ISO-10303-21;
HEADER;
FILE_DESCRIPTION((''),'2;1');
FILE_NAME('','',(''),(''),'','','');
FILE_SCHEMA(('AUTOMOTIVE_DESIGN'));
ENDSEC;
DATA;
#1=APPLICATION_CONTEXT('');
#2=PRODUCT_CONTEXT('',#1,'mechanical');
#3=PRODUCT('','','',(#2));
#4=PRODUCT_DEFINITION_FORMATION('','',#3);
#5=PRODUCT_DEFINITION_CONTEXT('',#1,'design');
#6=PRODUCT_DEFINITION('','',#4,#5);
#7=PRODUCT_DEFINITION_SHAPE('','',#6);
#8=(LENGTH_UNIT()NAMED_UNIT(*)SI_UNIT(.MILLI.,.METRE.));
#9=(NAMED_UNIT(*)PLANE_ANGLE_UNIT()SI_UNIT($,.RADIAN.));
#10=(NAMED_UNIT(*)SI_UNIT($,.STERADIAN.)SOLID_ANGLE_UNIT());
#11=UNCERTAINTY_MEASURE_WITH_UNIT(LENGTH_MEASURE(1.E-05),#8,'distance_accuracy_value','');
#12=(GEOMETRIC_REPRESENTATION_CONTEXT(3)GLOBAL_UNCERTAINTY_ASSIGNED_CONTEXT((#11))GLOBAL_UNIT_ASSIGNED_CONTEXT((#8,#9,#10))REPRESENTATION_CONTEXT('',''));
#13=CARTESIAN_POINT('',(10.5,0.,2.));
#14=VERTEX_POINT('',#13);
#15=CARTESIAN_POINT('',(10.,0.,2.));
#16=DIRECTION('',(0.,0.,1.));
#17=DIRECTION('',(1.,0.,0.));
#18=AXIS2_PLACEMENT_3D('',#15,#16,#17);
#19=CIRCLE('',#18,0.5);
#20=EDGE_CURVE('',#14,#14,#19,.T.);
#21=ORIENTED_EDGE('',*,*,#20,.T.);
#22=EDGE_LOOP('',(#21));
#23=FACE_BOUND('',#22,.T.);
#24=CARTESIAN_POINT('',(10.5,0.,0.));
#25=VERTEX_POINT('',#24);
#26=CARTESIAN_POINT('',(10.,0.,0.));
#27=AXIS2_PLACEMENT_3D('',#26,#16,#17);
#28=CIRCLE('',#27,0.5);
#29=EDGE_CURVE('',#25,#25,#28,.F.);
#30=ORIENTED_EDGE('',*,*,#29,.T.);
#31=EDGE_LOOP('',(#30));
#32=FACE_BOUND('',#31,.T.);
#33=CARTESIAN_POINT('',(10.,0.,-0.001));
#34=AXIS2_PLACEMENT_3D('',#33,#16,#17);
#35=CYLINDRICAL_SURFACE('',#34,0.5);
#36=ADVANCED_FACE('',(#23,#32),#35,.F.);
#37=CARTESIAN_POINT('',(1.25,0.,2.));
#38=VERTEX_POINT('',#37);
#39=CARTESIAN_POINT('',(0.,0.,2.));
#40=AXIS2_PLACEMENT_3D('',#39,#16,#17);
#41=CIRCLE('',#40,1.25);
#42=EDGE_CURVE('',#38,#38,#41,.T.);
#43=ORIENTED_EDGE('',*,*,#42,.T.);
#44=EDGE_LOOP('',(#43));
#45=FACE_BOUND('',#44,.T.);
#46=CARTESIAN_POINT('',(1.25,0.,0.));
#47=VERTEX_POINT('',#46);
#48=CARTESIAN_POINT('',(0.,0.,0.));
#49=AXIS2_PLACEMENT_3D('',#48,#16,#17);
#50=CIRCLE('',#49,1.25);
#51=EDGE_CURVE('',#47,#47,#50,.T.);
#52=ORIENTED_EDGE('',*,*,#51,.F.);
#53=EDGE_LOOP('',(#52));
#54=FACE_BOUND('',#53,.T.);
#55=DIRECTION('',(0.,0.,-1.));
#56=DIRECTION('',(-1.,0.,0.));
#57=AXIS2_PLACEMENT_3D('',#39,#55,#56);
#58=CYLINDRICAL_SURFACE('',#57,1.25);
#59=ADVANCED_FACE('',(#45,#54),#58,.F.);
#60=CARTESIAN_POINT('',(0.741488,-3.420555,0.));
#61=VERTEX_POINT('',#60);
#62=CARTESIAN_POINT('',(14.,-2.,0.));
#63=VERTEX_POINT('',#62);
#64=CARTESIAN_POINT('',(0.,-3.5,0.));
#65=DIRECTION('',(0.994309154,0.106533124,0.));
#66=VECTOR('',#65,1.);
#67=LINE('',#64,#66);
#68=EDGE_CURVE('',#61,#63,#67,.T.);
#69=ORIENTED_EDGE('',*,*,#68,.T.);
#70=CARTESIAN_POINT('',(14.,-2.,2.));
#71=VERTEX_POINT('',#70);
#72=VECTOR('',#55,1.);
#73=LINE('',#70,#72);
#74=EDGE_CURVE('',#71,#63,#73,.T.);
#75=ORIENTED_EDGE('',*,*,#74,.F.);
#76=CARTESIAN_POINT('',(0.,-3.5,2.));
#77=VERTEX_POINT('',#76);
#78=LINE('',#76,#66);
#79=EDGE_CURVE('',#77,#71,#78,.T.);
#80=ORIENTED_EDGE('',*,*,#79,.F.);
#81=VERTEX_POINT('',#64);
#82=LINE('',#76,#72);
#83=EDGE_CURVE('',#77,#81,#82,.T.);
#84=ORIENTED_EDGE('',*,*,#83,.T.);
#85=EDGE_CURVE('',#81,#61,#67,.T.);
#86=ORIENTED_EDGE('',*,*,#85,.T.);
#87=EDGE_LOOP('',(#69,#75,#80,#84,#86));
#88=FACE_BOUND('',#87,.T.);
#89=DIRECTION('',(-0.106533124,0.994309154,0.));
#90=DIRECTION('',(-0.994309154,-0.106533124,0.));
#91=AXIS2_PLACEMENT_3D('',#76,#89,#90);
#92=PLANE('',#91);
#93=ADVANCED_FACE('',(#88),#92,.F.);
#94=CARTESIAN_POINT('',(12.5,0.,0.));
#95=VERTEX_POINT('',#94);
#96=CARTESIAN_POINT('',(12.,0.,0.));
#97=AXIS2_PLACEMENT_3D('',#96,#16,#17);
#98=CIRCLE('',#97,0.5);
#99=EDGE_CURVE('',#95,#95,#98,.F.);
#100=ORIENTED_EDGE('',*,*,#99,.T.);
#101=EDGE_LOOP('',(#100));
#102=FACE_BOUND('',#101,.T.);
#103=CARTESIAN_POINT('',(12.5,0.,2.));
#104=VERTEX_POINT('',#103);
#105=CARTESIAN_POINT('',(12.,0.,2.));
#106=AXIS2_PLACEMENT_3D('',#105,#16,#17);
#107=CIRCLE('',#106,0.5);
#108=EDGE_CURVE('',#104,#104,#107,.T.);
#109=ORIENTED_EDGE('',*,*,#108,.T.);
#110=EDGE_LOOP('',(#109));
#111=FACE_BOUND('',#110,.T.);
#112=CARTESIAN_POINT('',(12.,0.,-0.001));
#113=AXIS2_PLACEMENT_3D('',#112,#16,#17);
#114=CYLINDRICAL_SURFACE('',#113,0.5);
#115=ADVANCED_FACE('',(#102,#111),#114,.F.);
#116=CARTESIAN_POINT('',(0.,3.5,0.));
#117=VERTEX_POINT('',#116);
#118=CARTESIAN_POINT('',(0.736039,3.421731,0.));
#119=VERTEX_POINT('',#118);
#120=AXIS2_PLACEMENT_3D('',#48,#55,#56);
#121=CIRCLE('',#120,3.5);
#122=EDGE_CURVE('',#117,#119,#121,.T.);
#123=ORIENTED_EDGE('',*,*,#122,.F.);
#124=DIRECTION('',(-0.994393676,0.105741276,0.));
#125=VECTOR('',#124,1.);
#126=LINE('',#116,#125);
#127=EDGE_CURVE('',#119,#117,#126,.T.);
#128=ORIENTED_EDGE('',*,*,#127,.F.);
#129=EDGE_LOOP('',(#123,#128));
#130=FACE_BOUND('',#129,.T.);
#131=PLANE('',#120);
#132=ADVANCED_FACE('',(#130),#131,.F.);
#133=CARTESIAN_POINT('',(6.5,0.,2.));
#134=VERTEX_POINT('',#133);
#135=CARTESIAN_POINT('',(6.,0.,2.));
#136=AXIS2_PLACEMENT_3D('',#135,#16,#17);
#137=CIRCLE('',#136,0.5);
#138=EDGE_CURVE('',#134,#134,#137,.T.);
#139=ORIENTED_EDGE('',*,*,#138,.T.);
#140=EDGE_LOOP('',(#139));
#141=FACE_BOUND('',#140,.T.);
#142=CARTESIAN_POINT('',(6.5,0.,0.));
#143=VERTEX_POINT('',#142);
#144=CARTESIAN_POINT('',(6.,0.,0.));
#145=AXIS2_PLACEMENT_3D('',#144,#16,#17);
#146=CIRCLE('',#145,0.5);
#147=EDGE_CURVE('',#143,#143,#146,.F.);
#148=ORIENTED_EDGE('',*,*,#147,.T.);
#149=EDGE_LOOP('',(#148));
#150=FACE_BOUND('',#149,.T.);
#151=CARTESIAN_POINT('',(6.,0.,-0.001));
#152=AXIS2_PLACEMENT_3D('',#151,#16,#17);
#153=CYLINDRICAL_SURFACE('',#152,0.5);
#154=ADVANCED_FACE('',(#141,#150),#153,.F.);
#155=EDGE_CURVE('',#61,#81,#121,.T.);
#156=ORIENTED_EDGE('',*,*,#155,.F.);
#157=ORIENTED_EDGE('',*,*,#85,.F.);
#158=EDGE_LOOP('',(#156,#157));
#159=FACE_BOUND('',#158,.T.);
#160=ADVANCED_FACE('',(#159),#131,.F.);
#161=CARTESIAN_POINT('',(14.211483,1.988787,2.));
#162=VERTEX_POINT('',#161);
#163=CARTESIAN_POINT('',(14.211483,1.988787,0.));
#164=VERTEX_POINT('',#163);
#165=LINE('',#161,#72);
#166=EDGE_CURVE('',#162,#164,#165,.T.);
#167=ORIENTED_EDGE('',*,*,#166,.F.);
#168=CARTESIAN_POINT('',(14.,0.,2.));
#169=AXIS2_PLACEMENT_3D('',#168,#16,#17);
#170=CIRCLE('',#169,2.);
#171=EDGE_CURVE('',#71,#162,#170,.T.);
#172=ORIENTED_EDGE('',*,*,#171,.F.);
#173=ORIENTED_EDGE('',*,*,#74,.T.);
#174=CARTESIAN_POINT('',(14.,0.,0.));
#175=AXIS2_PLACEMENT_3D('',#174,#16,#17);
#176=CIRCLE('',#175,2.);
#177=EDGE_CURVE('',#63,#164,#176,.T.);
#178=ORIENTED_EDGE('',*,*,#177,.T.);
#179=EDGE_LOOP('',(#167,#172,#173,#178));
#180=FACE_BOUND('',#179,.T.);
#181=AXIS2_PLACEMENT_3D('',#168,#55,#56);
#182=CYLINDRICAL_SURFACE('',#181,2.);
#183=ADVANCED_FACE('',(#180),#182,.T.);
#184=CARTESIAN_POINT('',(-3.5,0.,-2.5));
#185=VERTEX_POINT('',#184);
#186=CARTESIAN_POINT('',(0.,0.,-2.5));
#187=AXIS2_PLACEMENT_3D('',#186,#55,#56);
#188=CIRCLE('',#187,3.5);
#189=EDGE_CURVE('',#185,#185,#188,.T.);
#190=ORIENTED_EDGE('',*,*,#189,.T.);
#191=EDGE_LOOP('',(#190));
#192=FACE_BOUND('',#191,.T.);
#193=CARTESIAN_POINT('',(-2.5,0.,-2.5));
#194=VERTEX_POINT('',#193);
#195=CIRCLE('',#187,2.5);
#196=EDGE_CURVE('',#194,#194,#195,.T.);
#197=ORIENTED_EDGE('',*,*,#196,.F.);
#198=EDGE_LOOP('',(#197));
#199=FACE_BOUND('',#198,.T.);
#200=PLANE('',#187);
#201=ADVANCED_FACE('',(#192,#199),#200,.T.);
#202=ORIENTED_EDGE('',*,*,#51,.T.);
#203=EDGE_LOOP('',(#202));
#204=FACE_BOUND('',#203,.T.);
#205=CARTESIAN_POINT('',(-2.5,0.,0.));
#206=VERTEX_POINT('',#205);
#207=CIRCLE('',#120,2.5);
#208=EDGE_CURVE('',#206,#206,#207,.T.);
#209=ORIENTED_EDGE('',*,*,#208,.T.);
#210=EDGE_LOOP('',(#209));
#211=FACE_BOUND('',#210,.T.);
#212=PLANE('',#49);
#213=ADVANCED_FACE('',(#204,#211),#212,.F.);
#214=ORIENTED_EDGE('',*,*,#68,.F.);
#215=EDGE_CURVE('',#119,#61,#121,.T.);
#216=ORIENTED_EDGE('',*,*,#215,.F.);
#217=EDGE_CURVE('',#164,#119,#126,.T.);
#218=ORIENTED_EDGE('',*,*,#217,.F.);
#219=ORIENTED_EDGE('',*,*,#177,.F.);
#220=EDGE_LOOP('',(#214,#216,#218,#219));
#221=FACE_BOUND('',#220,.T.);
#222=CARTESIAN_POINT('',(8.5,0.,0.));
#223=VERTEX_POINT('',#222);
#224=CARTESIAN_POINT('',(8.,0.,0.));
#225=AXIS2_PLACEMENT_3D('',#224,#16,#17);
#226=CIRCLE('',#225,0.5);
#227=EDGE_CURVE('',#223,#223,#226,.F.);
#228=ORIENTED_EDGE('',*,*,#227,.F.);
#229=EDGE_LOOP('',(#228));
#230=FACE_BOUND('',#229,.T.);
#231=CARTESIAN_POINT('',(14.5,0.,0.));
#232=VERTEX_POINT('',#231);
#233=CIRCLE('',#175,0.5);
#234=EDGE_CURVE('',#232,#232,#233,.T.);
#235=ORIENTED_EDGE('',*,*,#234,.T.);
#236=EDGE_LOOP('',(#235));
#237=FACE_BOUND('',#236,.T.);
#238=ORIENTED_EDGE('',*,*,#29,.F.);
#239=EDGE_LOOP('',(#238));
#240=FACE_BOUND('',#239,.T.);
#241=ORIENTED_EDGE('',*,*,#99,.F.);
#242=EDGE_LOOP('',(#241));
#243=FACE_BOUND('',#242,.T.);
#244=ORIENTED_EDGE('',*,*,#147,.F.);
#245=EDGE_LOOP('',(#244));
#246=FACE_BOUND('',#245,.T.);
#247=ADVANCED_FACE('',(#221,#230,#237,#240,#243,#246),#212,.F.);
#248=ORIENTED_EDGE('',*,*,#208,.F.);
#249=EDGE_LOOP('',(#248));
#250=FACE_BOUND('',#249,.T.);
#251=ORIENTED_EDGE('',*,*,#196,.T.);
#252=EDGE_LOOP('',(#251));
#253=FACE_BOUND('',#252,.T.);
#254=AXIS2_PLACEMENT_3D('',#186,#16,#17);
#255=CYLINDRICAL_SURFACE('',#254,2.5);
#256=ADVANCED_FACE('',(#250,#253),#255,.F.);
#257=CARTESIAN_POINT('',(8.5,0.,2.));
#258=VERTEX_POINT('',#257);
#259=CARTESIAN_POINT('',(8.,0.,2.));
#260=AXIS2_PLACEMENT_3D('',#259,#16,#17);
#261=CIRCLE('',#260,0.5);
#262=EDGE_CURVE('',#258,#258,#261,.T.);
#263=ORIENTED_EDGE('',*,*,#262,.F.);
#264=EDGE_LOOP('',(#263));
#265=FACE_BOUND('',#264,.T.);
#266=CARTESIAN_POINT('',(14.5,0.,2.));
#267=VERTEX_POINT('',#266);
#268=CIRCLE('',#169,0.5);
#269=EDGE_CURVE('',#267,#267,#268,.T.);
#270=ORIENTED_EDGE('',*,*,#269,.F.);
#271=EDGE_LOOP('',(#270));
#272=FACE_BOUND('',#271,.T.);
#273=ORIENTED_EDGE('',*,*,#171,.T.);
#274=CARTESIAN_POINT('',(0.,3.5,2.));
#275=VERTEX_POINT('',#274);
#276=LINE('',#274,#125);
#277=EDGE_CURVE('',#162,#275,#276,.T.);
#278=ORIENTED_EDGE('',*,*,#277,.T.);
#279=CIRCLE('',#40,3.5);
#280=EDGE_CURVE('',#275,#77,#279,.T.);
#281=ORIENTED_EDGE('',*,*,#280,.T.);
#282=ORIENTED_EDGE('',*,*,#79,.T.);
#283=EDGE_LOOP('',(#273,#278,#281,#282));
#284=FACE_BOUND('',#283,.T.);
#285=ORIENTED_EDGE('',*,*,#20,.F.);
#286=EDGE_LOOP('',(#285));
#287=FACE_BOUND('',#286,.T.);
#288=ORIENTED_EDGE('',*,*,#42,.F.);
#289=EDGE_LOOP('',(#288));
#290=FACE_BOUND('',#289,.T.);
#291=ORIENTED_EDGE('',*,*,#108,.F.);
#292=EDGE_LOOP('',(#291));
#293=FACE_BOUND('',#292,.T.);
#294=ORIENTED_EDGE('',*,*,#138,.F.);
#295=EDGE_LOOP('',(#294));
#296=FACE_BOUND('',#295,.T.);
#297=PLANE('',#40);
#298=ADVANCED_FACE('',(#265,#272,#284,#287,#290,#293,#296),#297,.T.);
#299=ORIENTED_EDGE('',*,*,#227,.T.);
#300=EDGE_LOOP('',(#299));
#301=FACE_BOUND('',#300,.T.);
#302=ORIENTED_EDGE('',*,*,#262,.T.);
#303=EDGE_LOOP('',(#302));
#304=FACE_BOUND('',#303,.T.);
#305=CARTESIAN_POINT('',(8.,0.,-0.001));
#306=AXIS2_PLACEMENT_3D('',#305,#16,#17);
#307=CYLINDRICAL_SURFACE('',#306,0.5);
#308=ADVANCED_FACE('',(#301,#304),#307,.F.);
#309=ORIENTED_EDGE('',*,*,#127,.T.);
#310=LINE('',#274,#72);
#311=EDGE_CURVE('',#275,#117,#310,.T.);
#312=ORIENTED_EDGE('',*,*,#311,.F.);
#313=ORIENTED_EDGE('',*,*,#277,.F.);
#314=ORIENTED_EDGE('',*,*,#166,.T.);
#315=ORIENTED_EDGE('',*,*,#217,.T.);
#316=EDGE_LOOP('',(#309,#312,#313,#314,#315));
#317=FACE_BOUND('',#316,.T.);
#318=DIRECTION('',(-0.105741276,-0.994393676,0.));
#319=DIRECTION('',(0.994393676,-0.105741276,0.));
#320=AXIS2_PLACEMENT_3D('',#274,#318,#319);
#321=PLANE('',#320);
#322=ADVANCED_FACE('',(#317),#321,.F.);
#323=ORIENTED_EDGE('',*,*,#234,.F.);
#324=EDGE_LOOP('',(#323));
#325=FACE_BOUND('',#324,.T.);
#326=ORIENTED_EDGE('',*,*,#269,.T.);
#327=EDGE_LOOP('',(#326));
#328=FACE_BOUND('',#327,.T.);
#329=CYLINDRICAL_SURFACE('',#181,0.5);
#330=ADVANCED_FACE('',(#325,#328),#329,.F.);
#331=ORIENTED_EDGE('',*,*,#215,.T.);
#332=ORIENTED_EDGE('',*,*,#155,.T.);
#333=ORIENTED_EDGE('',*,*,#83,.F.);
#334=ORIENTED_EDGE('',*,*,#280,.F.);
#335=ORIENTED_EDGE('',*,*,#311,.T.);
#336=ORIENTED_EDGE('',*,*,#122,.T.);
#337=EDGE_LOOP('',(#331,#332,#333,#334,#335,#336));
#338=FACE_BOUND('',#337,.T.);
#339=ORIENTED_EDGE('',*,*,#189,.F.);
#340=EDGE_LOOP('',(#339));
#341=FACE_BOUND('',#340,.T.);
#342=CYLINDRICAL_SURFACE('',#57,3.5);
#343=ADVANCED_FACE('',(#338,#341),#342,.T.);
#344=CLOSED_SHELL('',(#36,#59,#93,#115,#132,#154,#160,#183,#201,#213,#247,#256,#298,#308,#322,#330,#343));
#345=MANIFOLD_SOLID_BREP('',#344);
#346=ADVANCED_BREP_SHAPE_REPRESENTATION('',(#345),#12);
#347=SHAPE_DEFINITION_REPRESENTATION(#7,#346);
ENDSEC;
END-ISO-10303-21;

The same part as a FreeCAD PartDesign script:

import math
import FreeCAD as App
import Part
import Sketcher
Q = App.Units.Quantity

doc = App.newDocument("Part")
body = doc.addObject("PartDesign::Body", "Body")

# Sketch on XY plane
sketch1 = body.newObject("Sketcher::SketchObject", "Sketch")
sketch1.AttachmentSupport = (doc.getObject("XY_Plane"), [""])
sketch1.MapMode = "FlatFace"
sketch1.addGeometry([
    Part.LineSegment(App.Vector(14.2, 2, 0), App.Vector(0, 3.5, 0)),  # 0
    Part.ArcOfCircle(Part.Circle(App.Vector(0, 0, 0), App.Vector(0, 0, 1), 3.5), math.radians(90), math.radians(270)),  # 1
    Part.LineSegment(App.Vector(0, -3.5, 0), App.Vector(14, -2, 0)),  # 2
    Part.ArcOfCircle(Part.Circle(App.Vector(14, 0, 0), App.Vector(0, 0, 1), 2), math.radians(-90), math.radians(84)),  # 3
    Part.Circle(App.Vector(14, 0, 0), App.Vector(0, 0, 1), 0.5),  # 4
    Part.Circle(App.Vector(0, 0, 0), App.Vector(0, 0, 1), 1.2),  # 5
], False)
sketch1.addConstraint([
    Sketcher.Constraint("Coincident", 0, 2, 1, 1),
    Sketcher.Constraint("Coincident", 1, 2, 2, 1),
    Sketcher.Constraint("Coincident", 2, 2, 3, 1),
    Sketcher.Constraint("Tangent", 3, 2, 0, 1),
    Sketcher.Constraint("Coincident", 1, 3, -1, 1),
    Sketcher.Constraint("Coincident", 5, 3, -1, 1),
    Sketcher.Constraint("Coincident", 4, 3, 3, 3),
    Sketcher.Constraint("PointOnObject", 3, 3, -1),
    Sketcher.Constraint("PointOnObject", 0, 2, -2),
    Sketcher.Constraint("PointOnObject", 1, 2, -2),
    Sketcher.Constraint("Vertical", 4, 3, 2, 2),
    Sketcher.Constraint("Diameter", 4, Q("1 mm")),
    Sketcher.Constraint("Radius", 3, Q("2 mm")),
    Sketcher.Constraint("Diameter", 5, Q("2.5 mm")),
    Sketcher.Constraint("Radius", 1, Q("3.5 mm")),
    Sketcher.Constraint("DistanceX", -1, 1, 3, 3, Q("14 mm")),
])
pad1 = body.newObject("PartDesign::Pad", "Pad")
pad1.Profile = sketch1
pad1.Length = 2

# Sketch on XY plane
sketch2 = body.newObject("Sketcher::SketchObject", "Sketch001")
sketch2.AttachmentSupport = (doc.getObject("XY_Plane"), [""])
sketch2.MapMode = "FlatFace"
sketch2.AttachmentOffset = App.Placement(App.Vector(0, 0, 2), App.Rotation())
sketch2.addGeometry(Part.Circle(App.Vector(12, 0, 0), App.Vector(0, 0, 1), 0.5), False)
sketch2.addConstraint([
    Sketcher.Constraint("PointOnObject", 0, 3, -1),
    Sketcher.Constraint("Diameter", 0, Q("1 mm")),
    Sketcher.Constraint("DistanceX", -1, 1, 0, 3, Q("12 mm")),
])
pocket1 = body.newObject("PartDesign::Pocket", "Pocket")
pocket1.Profile = sketch2
pocket1.Type = "UpToFirst"

# Sketch on XY plane
sketch3 = body.newObject("Sketcher::SketchObject", "Sketch002")
sketch3.AttachmentSupport = (doc.getObject("XY_Plane"), [""])
sketch3.MapMode = "FlatFace"
sketch3.AttachmentOffset = App.Placement(App.Vector(0, 0, 2), App.Rotation())
sketch3.addGeometry(Part.Circle(App.Vector(10, 0, 0), App.Vector(0, 0, 1), 0.5), False)
sketch3.addConstraint([
    Sketcher.Constraint("PointOnObject", 0, 3, -1),
    Sketcher.Constraint("Diameter", 0, Q("1 mm")),
    Sketcher.Constraint("DistanceX", -1, 1, 0, 3, Q("10 mm")),
])
pocket2 = body.newObject("PartDesign::Pocket", "Pocket001")
pocket2.Profile = sketch3
pocket2.Type = "UpToFirst"

# Sketch on XY plane
sketch4 = body.newObject("Sketcher::SketchObject", "Sketch003")
sketch4.AttachmentSupport = (doc.getObject("XY_Plane"), [""])
sketch4.MapMode = "FlatFace"
sketch4.AttachmentOffset = App.Placement(App.Vector(0, 0, 2), App.Rotation())
sketch4.addGeometry(Part.Circle(App.Vector(8, 0, 0), App.Vector(0, 0, 1), 0.5), False)
sketch4.addConstraint([
    Sketcher.Constraint("PointOnObject", 0, 3, -1),
    Sketcher.Constraint("Diameter", 0, Q("1 mm")),
    Sketcher.Constraint("DistanceX", -1, 1, 0, 3, Q("8 mm")),
])
pocket3 = body.newObject("PartDesign::Pocket", "Pocket002")
pocket3.Profile = sketch4
pocket3.Type = "UpToFirst"

# Sketch on XY plane
sketch5 = body.newObject("Sketcher::SketchObject", "Sketch004")
sketch5.AttachmentSupport = (doc.getObject("XY_Plane"), [""])
sketch5.MapMode = "FlatFace"
sketch5.AttachmentOffset = App.Placement(App.Vector(0, 0, 2), App.Rotation())
sketch5.addGeometry(Part.Circle(App.Vector(6, 0, 0), App.Vector(0, 0, 1), 0.5), False)
sketch5.addConstraint([
    Sketcher.Constraint("PointOnObject", 0, 3, -1),
    Sketcher.Constraint("Diameter", 0, Q("1 mm")),
    Sketcher.Constraint("DistanceX", -1, 1, 0, 3, Q("6 mm")),
])
pocket4 = body.newObject("PartDesign::Pocket", "Pocket003")
pocket4.Profile = sketch5
pocket4.Type = "UpToFirst"

# Sketch on XY plane
sketch6 = body.newObject("Sketcher::SketchObject", "Sketch005")
sketch6.AttachmentSupport = (doc.getObject("XY_Plane"), [""])
sketch6.MapMode = "FlatFace"
sketch6.AttachmentOffset = App.Placement(App.Vector(0, 0, -2.5), App.Rotation())
sketch6.addGeometry([
    Part.Circle(App.Vector(0, 0, 0), App.Vector(0, 0, 1), 3.5),
    Part.Circle(App.Vector(0, 0, 0), App.Vector(0, 0, 1), 2.5),
], False)
sketch6.addConstraint([
    Sketcher.Constraint("Coincident", 0, 3, -1, 1),
    Sketcher.Constraint("Coincident", 1, 3, -1, 1),
    Sketcher.Constraint("Diameter", 0, Q("7 mm")),
    Sketcher.Constraint("Diameter", 1, Q("5 mm")),
])
pad2 = body.newObject("PartDesign::Pad", "Pad001")
pad2.Profile = sketch6
pad2.Length = 2.5

doc.recompute()
